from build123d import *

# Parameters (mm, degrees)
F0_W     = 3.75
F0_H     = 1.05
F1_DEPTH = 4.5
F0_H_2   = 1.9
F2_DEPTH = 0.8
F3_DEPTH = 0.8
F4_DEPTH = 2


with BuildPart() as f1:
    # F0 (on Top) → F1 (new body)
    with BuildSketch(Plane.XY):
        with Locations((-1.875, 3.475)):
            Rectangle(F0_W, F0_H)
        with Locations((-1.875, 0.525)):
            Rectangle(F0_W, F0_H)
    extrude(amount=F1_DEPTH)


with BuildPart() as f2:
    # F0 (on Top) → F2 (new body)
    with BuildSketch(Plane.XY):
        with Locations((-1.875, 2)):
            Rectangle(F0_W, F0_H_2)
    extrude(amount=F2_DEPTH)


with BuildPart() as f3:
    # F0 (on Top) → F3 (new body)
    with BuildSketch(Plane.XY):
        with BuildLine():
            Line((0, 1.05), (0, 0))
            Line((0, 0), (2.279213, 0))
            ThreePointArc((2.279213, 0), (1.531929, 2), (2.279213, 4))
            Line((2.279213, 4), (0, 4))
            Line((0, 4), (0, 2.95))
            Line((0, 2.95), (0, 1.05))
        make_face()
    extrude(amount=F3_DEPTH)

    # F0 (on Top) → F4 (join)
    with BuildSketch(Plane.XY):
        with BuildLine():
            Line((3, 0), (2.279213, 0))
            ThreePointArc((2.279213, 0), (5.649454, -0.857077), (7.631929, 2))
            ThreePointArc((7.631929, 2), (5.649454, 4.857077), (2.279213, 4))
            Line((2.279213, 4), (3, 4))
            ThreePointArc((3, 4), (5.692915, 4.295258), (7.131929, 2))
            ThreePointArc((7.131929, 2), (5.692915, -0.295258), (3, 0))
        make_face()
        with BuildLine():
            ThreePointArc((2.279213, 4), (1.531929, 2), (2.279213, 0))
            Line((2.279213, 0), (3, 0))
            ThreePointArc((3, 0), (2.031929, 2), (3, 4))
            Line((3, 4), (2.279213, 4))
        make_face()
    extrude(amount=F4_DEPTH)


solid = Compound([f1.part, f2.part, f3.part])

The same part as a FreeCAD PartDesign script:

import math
import FreeCAD as App
import Part
import Sketcher
Q = App.Units.Quantity


def add_polygon(sketch, points):
    """Adds a closed chain of lines whose ends are joined by coincident constraints."""
    first, n = sketch.GeometryCount, len(points)
    for a, b in zip(points, points[1:] + points[:1]):
        sketch.addGeometry(Part.LineSegment(App.Vector(*a, 0), App.Vector(*b, 0)), False)
    for i in range(n):
        sketch.addConstraint(Sketcher.Constraint("Coincident", first + i, 2, first + (i + 1) % n, 1))

doc = App.newDocument("Part")
body = doc.addObject("PartDesign::Body", "Body")
body.AllowCompound = True

sketch1 = body.newObject("Sketcher::SketchObject", "Sketch")
sketch1.AttachmentSupport = (doc.getObject("XY_Plane"), [""])
sketch1.MapMode = "FlatFace"
add_polygon(sketch1, [(-3.8, 4), (-3.8, 3), (0, 3), (0, 4)])
add_polygon(sketch1, [(-3.8, 1.1), (-3.8, 0), (0, 0), (0, 1.1)])
sketch1.addConstraint(Sketcher.Constraint("Vertical", 0))
sketch1.addConstraint(Sketcher.Constraint("Horizontal", 1))
sketch1.addConstraint(Sketcher.Constraint("Vertical", 2))
sketch1.addConstraint(Sketcher.Constraint("Horizontal", 3))
sketch1.addConstraint(Sketcher.Constraint("Vertical", 4))
sketch1.addConstraint(Sketcher.Constraint("Horizontal", 5))
sketch1.addConstraint(Sketcher.Constraint("Vertical", 6))
sketch1.addConstraint(Sketcher.Constraint("Horizontal", 7))
sketch1.addConstraint(Sketcher.Constraint("Coincident", 5, 2, -1, 1))
sketch1.addConstraint(Sketcher.Constraint("PointOnObject", 1, 2, -2))
sketch1.addConstraint(Sketcher.Constraint("Vertical", 3, 2, 4, 2))
sketch1.addConstraint(Sketcher.Constraint("Equal", 2, 4))
sketch1.addConstraint(Sketcher.Constraint("DistanceY", -1, 1, 2, 2, Q("4 mm")))
sketch1.addConstraint(Sketcher.Constraint("DistanceX", 1, 1, 1, 2, Q("3.75 mm")))
sketch1.addConstraint(Sketcher.Constraint("DistanceY", 0, 2, 0, 1, Q("1.05 mm")))
pad1 = body.newObject("PartDesign::Pad", "Pad")
pad1.Profile = sketch1
pad1.Length = 4.5
body2 = doc.addObject("PartDesign::Body", "Body001")

sketch2 = body2.newObject("Sketcher::SketchObject", "Sketch001")
sketch2.AttachmentSupport = (doc.getObject("XY_Plane001"), [""])
sketch2.MapMode = "FlatFace"
add_polygon(sketch2, [(-3.8, 3), (-3.8, 1.1), (0, 1.1), (0, 3)])
sketch2.addConstraint(Sketcher.Constraint("Vertical", 0))
sketch2.addConstraint(Sketcher.Constraint("Horizontal", 1))
sketch2.addConstraint(Sketcher.Constraint("Vertical", 2))
sketch2.addConstraint(Sketcher.Constraint("Horizontal", 3))
sketch2.addConstraint(Sketcher.Constraint("PointOnObject", 1, 2, -2))
sketch2.addConstraint(Sketcher.Constraint("DistanceY", 0, 2, 0, 1, Q("1.9 mm")))
sketch2.addConstraint(Sketcher.Constraint("DistanceX", 1, 1, 1, 2, Q("3.75 mm")))
sketch2.addConstraint(Sketcher.Constraint("DistanceY", -1, 1, 0, 2, Q("1.05 mm")))
pad2 = body2.newObject("PartDesign::Pad", "Pad001")
pad2.Profile = sketch2
pad2.Length = 0.8
body3 = doc.addObject("PartDesign::Body", "Body002")

sketch3 = body3.newObject("Sketcher::SketchObject", "Sketch002")
sketch3.AttachmentSupport = (doc.getObject("XY_Plane002"), [""])
sketch3.MapMode = "FlatFace"
sketch3.addGeometry(Part.LineSegment(App.Vector(0, 0, 0), App.Vector(2.3, 0, 0)), False)
sketch3.addGeometry(Part.ArcOfCircle(Part.Circle(App.Vector(4.6, 2, 0), App.Vector(0, 0, 1), 3.1), math.radians(139), math.radians(221)), False)
sketch3.addGeometry(Part.LineSegment(App.Vector(2.3, 4, 0), App.Vector(0, 4, 0)), False)
sketch3.addGeometry(Part.LineSegment(App.Vector(0, 4, 0), App.Vector(0, 0, 0)), False)
sketch3.addConstraint(Sketcher.Constraint("Coincident", 0, 2, 1, 2))
sketch3.addConstraint(Sketcher.Constraint("Coincident", 1, 1, 2, 1))
sketch3.addConstraint(Sketcher.Constraint("Coincident", 2, 2, 3, 1))
sketch3.addConstraint(Sketcher.Constraint("Coincident", 3, 2, 0, 1))
sketch3.addConstraint(Sketcher.Constraint("Horizontal", 0))
sketch3.addConstraint(Sketcher.Constraint("Horizontal", 2))
sketch3.addConstraint(Sketcher.Constraint("Vertical", 3))
sketch3.addConstraint(Sketcher.Constraint("Coincident", 3, 2, -1, 1))
sketch3.addConstraint(Sketcher.Constraint("Vertical", 0, 2, 1, 1))
sketch3.addConstraint(Sketcher.Constraint("DistanceY", 3, 2, 3, 1, Q("4 mm")))
sketch3.addConstraint(Sketcher.Constraint("Radius", 1, Q("3.050001 mm")))
sketch3.addConstraint(Sketcher.Constraint("DistanceX", 0, 1, 0, 2, Q("2.279213 mm")))
pad3 = body3.newObject("PartDesign::Pad", "Pad002")
pad3.Profile = sketch3
pad3.Length = 0.8

sketch4 = body3.newObject("Sketcher::SketchObject", "Sketch003")
sketch4.AttachmentSupport = (doc.getObject("XY_Plane002"), [""])
sketch4.MapMode = "FlatFace"
sketch4.addGeometry(Part.ArcOfCircle(Part.Circle(App.Vector(4.6, 2, 0), App.Vector(0, 0, 1), 3.1), math.radians(-139), math.radians(0)), False)
sketch4.addGeometry(Part.ArcOfCircle(Part.Circle(App.Vector(4.6, 2, 0), App.Vector(0, 0, 1), 3.1), math.radians(0), math.radians(139)), False)
sketch4.addGeometry(Part.ArcOfCircle(Part.Circle(App.Vector(4.6, 2, 0), App.Vector(0, 0, 1), 3.1), math.radians(139), math.radians(221)), False)
sketch4.addGeometry(Part.ArcOfCircle(Part.Circle(App.Vector(4.6, 2, 0), App.Vector(0, 0, 1), 2.6), math.radians(0), math.radians(128)), False)
sketch4.addGeometry(Part.ArcOfCircle(Part.Circle(App.Vector(4.6, 2, 0), App.Vector(0, 0, 1), 2.6), math.radians(-128), math.radians(0)), False)
sketch4.addGeometry(Part.ArcOfCircle(Part.Circle(App.Vector(4.6, 2, 0), App.Vector(0, 0, 1), 2.5), math.radians(128), math.radians(232)), False)
sketch4.addConstraint(Sketcher.Constraint("Tangent", 0, 2, 1, 1))
sketch4.addConstraint(Sketcher.Constraint("Tangent", 1, 2, 2, 1))
sketch4.addConstraint(Sketcher.Constraint("Tangent", 2, 2, 0, 1))
sketch4.addConstraint(Sketcher.Constraint("Tangent", 3, 1, 4, 2))
sketch4.addConstraint(Sketcher.Constraint("Tangent", 4, 1, 5, 2))
sketch4.addConstraint(Sketcher.Constraint("Tangent", 5, 1, 3, 2))
sketch4.addConstraint(Sketcher.Constraint("Coincident", 3, 3, 0, 3))
sketch4.addConstraint(Sketcher.Constraint("PointOnObject", 2, 2, -1))
sketch4.addConstraint(Sketcher.Constraint("PointOnObject", 4, 1, -1))
sketch4.addConstraint(Sketcher.Constraint("Horizontal", 5, 3, 0, 2))
sketch4.addConstraint(Sketcher.Constraint("Horizontal", 0, 2, 3, 1))
sketch4.addConstraint(Sketcher.Constraint("Horizontal", 1, 2, 5, 1))
sketch4.addConstraint(Sketcher.Constraint("Vertical", 1, 2, 2, 2))
sketch4.addConstraint(Sketcher.Constraint("Radius", 0, Q("3.05 mm")))
sketch4.addConstraint(Sketcher.Constraint("Radius", 3, Q("2.55 mm")))
sketch4.addConstraint(Sketcher.Constraint("DistanceY", -1, 1, 0, 3, Q("2 mm")))
sketch4.addConstraint(Sketcher.Constraint("DistanceX", -1, 1, 4, 1, Q("3 mm")))
pad4 = body3.newObject("PartDesign::Pad", "Pad003")
pad4.Profile = sketch4
pad4.Length = 2

doc.recompute()
